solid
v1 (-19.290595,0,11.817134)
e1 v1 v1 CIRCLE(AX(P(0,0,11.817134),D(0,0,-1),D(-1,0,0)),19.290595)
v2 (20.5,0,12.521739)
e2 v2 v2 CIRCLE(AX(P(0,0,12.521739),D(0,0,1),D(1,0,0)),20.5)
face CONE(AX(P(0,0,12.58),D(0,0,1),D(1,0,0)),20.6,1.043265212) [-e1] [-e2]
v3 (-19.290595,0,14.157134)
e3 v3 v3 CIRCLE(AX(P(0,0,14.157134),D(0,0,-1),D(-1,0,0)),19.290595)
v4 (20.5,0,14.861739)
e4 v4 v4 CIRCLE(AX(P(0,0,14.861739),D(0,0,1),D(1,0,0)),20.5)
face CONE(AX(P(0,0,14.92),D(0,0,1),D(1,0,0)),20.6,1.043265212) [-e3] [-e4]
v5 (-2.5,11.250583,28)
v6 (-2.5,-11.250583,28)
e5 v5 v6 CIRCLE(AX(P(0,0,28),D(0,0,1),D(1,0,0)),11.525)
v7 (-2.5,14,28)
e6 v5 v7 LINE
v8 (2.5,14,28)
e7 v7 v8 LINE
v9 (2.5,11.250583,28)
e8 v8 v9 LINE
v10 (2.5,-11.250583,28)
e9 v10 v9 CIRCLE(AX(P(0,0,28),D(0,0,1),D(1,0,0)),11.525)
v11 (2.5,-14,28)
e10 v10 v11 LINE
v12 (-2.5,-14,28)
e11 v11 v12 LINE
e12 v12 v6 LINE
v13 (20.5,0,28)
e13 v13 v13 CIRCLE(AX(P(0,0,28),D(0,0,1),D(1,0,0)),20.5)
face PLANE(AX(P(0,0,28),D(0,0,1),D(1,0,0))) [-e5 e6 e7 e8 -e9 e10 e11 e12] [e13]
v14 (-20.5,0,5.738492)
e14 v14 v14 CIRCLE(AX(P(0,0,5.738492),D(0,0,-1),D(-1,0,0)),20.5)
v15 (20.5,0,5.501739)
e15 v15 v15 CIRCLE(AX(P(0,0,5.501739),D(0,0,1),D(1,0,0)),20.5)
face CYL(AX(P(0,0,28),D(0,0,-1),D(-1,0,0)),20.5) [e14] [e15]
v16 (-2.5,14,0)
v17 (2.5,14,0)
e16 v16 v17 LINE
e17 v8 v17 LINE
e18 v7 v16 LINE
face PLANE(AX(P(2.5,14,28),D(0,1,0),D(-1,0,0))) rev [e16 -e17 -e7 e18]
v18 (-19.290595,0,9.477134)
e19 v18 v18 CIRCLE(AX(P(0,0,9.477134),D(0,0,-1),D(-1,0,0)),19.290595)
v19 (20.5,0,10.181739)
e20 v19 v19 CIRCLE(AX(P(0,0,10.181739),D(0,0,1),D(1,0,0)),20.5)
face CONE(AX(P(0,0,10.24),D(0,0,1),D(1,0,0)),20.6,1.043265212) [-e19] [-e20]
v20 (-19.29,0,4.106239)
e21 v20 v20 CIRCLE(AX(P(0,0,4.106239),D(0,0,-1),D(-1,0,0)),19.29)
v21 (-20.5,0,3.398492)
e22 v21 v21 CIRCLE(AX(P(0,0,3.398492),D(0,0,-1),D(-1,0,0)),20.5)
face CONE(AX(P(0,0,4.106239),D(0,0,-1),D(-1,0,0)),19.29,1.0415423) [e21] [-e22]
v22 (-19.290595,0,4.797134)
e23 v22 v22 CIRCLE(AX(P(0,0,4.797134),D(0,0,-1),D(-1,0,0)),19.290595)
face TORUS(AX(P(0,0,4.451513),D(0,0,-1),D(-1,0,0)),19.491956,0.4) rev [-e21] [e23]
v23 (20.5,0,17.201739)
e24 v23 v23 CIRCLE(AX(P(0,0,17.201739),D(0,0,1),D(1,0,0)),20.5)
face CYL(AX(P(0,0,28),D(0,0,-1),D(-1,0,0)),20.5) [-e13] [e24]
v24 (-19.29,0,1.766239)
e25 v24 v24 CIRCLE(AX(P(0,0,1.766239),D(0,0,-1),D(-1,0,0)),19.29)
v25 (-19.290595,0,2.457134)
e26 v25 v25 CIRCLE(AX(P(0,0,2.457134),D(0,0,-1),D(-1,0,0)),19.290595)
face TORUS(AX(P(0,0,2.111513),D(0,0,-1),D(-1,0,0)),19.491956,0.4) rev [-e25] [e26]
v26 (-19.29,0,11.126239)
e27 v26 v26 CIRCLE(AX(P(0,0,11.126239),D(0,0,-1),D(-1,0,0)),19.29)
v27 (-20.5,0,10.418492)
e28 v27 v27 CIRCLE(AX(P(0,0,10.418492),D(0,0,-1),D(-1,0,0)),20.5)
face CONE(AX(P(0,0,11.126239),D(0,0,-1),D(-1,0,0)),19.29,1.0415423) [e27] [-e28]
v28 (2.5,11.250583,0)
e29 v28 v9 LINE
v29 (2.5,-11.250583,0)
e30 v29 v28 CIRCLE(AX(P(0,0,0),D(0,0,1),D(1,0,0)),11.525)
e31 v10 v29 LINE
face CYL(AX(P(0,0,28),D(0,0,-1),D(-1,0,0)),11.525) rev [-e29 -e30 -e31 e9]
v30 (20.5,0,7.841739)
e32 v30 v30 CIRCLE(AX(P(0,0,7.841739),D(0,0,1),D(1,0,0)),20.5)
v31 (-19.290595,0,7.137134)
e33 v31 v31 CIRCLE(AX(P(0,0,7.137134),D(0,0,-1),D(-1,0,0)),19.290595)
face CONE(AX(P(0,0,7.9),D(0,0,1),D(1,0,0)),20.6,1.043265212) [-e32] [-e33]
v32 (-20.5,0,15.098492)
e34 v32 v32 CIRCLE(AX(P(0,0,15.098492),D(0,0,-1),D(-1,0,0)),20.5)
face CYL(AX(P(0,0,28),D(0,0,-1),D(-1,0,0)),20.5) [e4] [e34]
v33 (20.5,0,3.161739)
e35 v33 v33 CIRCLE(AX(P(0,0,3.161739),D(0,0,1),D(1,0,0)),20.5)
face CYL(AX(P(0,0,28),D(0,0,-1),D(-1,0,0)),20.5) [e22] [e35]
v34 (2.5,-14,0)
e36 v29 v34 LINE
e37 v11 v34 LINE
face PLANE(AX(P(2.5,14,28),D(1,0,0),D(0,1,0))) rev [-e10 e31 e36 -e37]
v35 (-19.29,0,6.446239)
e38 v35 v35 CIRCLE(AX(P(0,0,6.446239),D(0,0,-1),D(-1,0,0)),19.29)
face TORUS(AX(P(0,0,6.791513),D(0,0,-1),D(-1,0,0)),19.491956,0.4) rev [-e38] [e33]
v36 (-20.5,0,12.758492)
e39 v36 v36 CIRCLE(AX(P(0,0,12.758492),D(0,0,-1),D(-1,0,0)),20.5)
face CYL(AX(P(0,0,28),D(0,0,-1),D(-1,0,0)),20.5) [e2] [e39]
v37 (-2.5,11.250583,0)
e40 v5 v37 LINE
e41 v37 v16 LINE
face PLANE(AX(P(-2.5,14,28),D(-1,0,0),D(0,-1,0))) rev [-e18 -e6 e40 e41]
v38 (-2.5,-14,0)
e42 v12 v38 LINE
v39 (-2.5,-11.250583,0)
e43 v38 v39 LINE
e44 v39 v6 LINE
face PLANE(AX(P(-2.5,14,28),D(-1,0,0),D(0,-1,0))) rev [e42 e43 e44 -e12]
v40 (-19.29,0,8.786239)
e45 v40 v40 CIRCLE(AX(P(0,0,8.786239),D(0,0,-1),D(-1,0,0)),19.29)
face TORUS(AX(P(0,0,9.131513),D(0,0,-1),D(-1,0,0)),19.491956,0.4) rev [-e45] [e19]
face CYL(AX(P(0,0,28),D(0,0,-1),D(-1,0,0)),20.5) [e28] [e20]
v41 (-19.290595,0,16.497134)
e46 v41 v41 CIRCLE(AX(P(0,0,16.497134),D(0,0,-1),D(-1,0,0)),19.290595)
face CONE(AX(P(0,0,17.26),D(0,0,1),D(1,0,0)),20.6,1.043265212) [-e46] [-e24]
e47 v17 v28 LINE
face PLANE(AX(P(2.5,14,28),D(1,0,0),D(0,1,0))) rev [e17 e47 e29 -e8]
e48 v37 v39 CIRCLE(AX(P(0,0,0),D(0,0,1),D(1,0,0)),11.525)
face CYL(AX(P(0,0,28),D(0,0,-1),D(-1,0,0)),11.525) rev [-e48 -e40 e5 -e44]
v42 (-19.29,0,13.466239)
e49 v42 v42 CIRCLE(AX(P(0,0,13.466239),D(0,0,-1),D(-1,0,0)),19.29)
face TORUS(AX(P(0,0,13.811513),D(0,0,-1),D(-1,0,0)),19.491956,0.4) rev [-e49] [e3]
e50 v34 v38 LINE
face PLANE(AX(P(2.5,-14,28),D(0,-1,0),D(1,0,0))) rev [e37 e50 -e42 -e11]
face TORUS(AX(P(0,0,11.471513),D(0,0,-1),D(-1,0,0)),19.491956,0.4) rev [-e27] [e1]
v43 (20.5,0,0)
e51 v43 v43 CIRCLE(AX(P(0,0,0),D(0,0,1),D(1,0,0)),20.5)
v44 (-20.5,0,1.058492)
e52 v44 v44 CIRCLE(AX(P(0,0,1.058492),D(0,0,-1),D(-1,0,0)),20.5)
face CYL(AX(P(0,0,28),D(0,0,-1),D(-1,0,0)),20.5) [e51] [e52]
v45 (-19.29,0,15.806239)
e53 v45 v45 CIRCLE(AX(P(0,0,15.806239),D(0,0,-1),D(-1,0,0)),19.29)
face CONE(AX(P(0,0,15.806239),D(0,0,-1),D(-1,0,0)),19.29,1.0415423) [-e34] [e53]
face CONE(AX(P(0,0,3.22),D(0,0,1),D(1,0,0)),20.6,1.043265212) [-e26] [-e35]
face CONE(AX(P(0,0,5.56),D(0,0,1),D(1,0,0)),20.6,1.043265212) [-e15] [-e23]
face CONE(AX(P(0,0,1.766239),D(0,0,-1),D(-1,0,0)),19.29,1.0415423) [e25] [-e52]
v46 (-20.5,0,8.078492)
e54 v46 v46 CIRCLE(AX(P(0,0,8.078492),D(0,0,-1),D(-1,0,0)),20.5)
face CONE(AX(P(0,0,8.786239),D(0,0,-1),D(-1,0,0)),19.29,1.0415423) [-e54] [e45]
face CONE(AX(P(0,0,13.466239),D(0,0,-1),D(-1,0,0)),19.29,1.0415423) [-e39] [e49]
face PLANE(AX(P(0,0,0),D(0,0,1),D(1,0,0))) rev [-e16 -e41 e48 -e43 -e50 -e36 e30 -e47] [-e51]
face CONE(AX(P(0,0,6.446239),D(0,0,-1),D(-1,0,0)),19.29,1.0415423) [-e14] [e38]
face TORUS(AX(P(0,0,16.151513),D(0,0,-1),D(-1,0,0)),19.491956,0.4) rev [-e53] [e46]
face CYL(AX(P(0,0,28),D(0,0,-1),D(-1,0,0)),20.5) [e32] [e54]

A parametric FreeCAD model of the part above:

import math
import FreeCAD as App
import Part
import Sketcher

V = App.Vector
Q = App.Units.Quantity


def add_polygon(sketch, points):
    """Adds a closed chain of lines whose ends are joined by coincident constraints."""
    first, n = sketch.GeometryCount, len(points)
    for a, b in zip(points, points[1:] + points[:1]):
        sketch.addGeometry(Part.LineSegment(App.Vector(*a, 0), App.Vector(*b, 0)), False)
    for i in range(n):
        sketch.addConstraint(Sketcher.Constraint("Coincident", first + i, 2, first + (i + 1) % n, 1))

doc = App.newDocument("Part")
params = doc.addObject("Spreadsheet::Sheet", "Params")
for row, (alias, value) in enumerate([
    ("sketch1_diameter", "41 mm"),
    ("sketch1_diameter2", "23.05 mm"),
    ("pad1_length", "28 mm"),
    ("sketch2_radius", "0.4 mm"),
    ("sketch2_height", "2.22 mm"),
    ("groove_angle", "360 deg"),
    ("sketch3_width", "5 mm"),
    ("sketch3_height", "28 mm"),
], start=1):
    params.set(f"A{row}", alias)
    params.set(f"B{row}", "=" + value)
    params.setAlias(f"B{row}", alias)

body = doc.addObject("PartDesign::Body", "Body")

# Sketch on XY plane
sketch1 = body.newObject("Sketcher::SketchObject", "Sketch")
sketch1.AttachmentSupport = (doc.getObject("XY_Plane"), [""])
sketch1.MapMode = "FlatFace"
sketch1.addGeometry([
    Part.Circle(V(0, 0, 0), V(0, 0, 1), 20.5),
    Part.Circle(V(0, 0, 0), V(0, 0, 1), 11.525),
], False)
sketch1.addConstraint([
    Sketcher.Constraint("Coincident", 0, 3, -1, 1),
    Sketcher.Constraint("Coincident", 1, 3, -1, 1),
    Sketcher.Constraint("Diameter", 0, Q("41 mm")),
    Sketcher.Constraint("Diameter", 1, Q("23.05 mm")),
])
sketch1.setExpression("Constraints[2]", "Params.sketch1_diameter")
sketch1.setExpression("Constraints[3]", "Params.sketch1_diameter2")
pad1 = body.newObject("PartDesign::Pad", "Pad")
pad1.Profile = sketch1
pad1.setExpression("Length", "Params.pad1_length")

# Sketch on YZ plane
sketch2 = body.newObject("Sketcher::SketchObject", "Sketch001")
sketch2.AttachmentSupport = (doc.getObject("YZ_Plane"), [""])
sketch2.MapMode = "FlatFace"
sketch2.addGeometry([
    Part.LineSegment(V(20.6, 1, 0), V(20.6, 3.22, 0)),  # 0
    Part.LineSegment(V(20.6, 3.22, 0), V(19.290595, 2.457134, 0)),  # 1
    Part.ArcOfCircle(Part.Circle(V(19.491956, 2.111513, 0), V(0, 0, 1), 0.4), math.radians(120.225306), math.radians(239.675978)),  # 2
    Part.LineSegment(V(19.29, 1.766239, 0), V(20.6, 1, 0)),  # 3
    Part.LineSegment(V(19.29, 4.106239, 0), V(20.6, 3.34, 0)),  # 4
    Part.LineSegment(V(20.6, 3.34, 0), V(20.6, 5.56, 0)),  # 5
    Part.LineSegment(V(20.6, 5.56, 0), V(19.290595, 4.797134, 0)),  # 6
    Part.ArcOfCircle(Part.Circle(V(19.491956, 4.451513, 0), V(0, 0, 1), 0.4), math.radians(120.225306), math.radians(239.675978)),  # 7
    Part.LineSegment(V(19.29, 6.446239, 0), V(20.6, 5.68, 0)),  # 8
    Part.LineSegment(V(20.6, 5.68, 0), V(20.6, 7.9, 0)),  # 9
    Part.LineSegment(V(20.6, 7.9, 0), V(19.290595, 7.137134, 0)),  # 10
    Part.ArcOfCircle(Part.Circle(V(19.491956, 6.791513, 0), V(0, 0, 1), 0.4), math.radians(120.225306), math.radians(239.675978)),  # 11
    Part.LineSegment(V(19.29, 8.786239, 0), V(20.6, 8.02, 0)),  # 12
    Part.LineSegment(V(20.6, 8.02, 0), V(20.6, 10.24, 0)),  # 13
    Part.LineSegment(V(20.6, 10.24, 0), V(19.290595, 9.477134, 0)),  # 14
    Part.ArcOfCircle(Part.Circle(V(19.491956, 9.131513, 0), V(0, 0, 1), 0.4), math.radians(120.225306), math.radians(239.675978)),  # 15
    Part.LineSegment(V(19.29, 11.126239, 0), V(20.6, 10.36, 0)),  # 16
    Part.LineSegment(V(20.6, 10.36, 0), V(20.6, 12.58, 0)),  # 17
    Part.LineSegment(V(20.6, 12.58, 0), V(19.290595, 11.817134, 0)),  # 18
    Part.ArcOfCircle(Part.Circle(V(19.491956, 11.471513, 0), V(0, 0, 1), 0.4), math.radians(120.225306), math.radians(239.675978)),  # 19
    Part.LineSegment(V(19.29, 13.466239, 0), V(20.6, 12.7, 0)),  # 20
    Part.LineSegment(V(20.6, 12.7, 0), V(20.6, 14.92, 0)),  # 21
    Part.LineSegment(V(20.6, 14.92, 0), V(19.290595, 14.157134, 0)),  # 22
    Part.ArcOfCircle(Part.Circle(V(19.491956, 13.811513, 0), V(0, 0, 1), 0.4), math.radians(120.225306), math.radians(239.675978)),  # 23
    Part.LineSegment(V(19.29, 15.806239, 0), V(20.6, 15.04, 0)),  # 24
    Part.LineSegment(V(20.6, 15.04, 0), V(20.6, 17.26, 0)),  # 25
    Part.LineSegment(V(20.6, 17.26, 0), V(19.290595, 16.497134, 0)),  # 26
    Part.ArcOfCircle(Part.Circle(V(19.491956, 16.151513, 0), V(0, 0, 1), 0.4), math.radians(120.225306), math.radians(239.675978)),  # 27
], False)
sketch2.addConstraint([
    Sketcher.Constraint("Coincident", 0, 2, 1, 1),
    Sketcher.Constraint("Tangent", 1, 2, 2, 1),
    Sketcher.Constraint("Tangent", 2, 2, 3, 1),
    Sketcher.Constraint("Coincident", 3, 2, 0, 1),
    Sketcher.Constraint("Coincident", 4, 2, 5, 1),
    Sketcher.Constraint("Coincident", 5, 2, 6, 1),
    Sketcher.Constraint("Tangent", 6, 2, 7, 1),
    Sketcher.Constraint("Tangent", 7, 2, 4, 1),
    Sketcher.Constraint("Coincident", 8, 2, 9, 1),
    Sketcher.Constraint("Coincident", 9, 2, 10, 1),
    Sketcher.Constraint("Tangent", 10, 2, 11, 1),
    Sketcher.Constraint("Tangent", 11, 2, 8, 1),
    Sketcher.Constraint("Coincident", 12, 2, 13, 1),
    Sketcher.Constraint("Coincident", 13, 2, 14, 1),
    Sketcher.Constraint("Tangent", 14, 2, 15, 1),
    Sketcher.Constraint("Tangent", 15, 2, 12, 1),
    Sketcher.Constraint("Coincident", 16, 2, 17, 1),
    Sketcher.Constraint("Coincident", 17, 2, 18, 1),
    Sketcher.Constraint("Tangent", 18, 2, 19, 1),
    Sketcher.Constraint("Tangent", 19, 2, 16, 1),
    Sketcher.Constraint("Coincident", 20, 2, 21, 1),
    Sketcher.Constraint("Coincident", 21, 2, 22, 1),
    Sketcher.Constraint("Tangent", 22, 2, 23, 1),
    Sketcher.Constraint("Tangent", 23, 2, 20, 1),
    Sketcher.Constraint("Coincident", 24, 2, 25, 1),
    Sketcher.Constraint("Coincident", 25, 2, 26, 1),
    Sketcher.Constraint("Tangent", 26, 2, 27, 1),
    Sketcher.Constraint("Tangent", 27, 2, 24, 1),
    Sketcher.Constraint("Vertical", 0),
    Sketcher.Constraint("Vertical", 5),
    Sketcher.Constraint("Vertical", 9),
    Sketcher.Constraint("Vertical", 13),
    Sketcher.Constraint("Vertical", 17),
    Sketcher.Constraint("Vertical", 21),
    Sketcher.Constraint("Vertical", 25),
    Sketcher.Constraint("Equal", 2, 7),
    Sketcher.Constraint("Equal", 7, 11),
    Sketcher.Constraint("Equal", 11, 15),
    Sketcher.Constraint("Equal", 15, 19),
    Sketcher.Constraint("Equal", 19, 23),
    Sketcher.Constraint("Equal", 23, 27),
    Sketcher.Constraint("Parallel", 3, 4),
    Sketcher.Constraint("Parallel", 1, 6),
    Sketcher.Constraint("Parallel", 4, 8),
    Sketcher.Constraint("Parallel", 6, 10),
    Sketcher.Constraint("Parallel", 8, 12),
    Sketcher.Constraint("Parallel", 10, 14),
    Sketcher.Constraint("Parallel", 12, 16),
    Sketcher.Constraint("Parallel", 14, 18),
    Sketcher.Constraint("Parallel", 16, 20),
    Sketcher.Constraint("Parallel", 18, 22),
    Sketcher.Constraint("Parallel", 20, 24),
    Sketcher.Constraint("Parallel", 22, 26),
    Sketcher.Constraint("Vertical", 2, 3, 7, 3),
    Sketcher.Constraint("Vertical", 7, 3, 11, 3),
    Sketcher.Constraint("Vertical", 11, 3, 15, 3),
    Sketcher.Constraint("Vertical", 15, 3, 19, 3),
    Sketcher.Constraint("Vertical", 19, 3, 23, 3),
    Sketcher.Constraint("Vertical", 23, 3, 27, 3),
    Sketcher.Constraint("Vertical", 3, 2, 4, 2),
    Sketcher.Constraint("Vertical", 5, 2, 8, 2),
    Sketcher.Constraint("Vertical", 9, 2, 12, 2),
    Sketcher.Constraint("Vertical", 13, 2, 16, 2),
    Sketcher.Constraint("Vertical", 17, 2, 20, 2),
    Sketcher.Constraint("Vertical", 21, 2, 24, 2),
    Sketcher.Constraint("Radius", 2, Q("0.4 mm")),
    Sketcher.Constraint("DistanceY", -1, 1, 3, 2, Q("1 mm")),
    Sketcher.Constraint("DistanceY", 0, 1, 0, 2, Q("2.22 mm")),
    Sketcher.Constraint("DistanceX", -1, 1, 0, 2, Q("20.6 mm")),
    Sketcher.Constraint("DistanceY", -1, 1, 9, 2, Q("7.9 mm")),
    Sketcher.Constraint("DistanceY", -1, 1, 20, 2, Q("12.7 mm")),
    Sketcher.Constraint("DistanceY", 7, 3, 27, 3, Q("11.7 mm")),
    Sketcher.Constraint("DistanceX", -1, 1, 2, 2, Q("19.29 mm")),
    Sketcher.Constraint("DistanceY", -1, 1, 4, 2, Q("3.34 mm")),
    Sketcher.Constraint("DistanceY", -1, 1, 12, 2, Q("8.02 mm")),
    Sketcher.Constraint("DistanceY", -1, 1, 16, 2, Q("10.36 mm")),
    Sketcher.Constraint("DistanceY", -1, 1, 2, 2, Q("1.766239 mm")),
])
sketch2.setExpression("Constraints[65]", "Params.sketch2_radius")
sketch2.setExpression("Constraints[67]", "Params.sketch2_height")
groove = body.newObject("PartDesign::Groove", "Groove")
groove.Profile = sketch2
groove.ReferenceAxis = (sketch2, ["V_Axis"])
groove.setExpression("Angle", "Params.groove_angle")

# Sketch on XY plane
sketch3 = body.newObject("Sketcher::SketchObject", "Sketch002")
sketch3.AttachmentSupport = (doc.getObject("XY_Plane"), [""])
sketch3.MapMode = "FlatFace"
add_polygon(sketch3, [(2.5, 14), (2.5, -14), (-2.5, -14), (-2.5, 14)])  # lines 0-3
sketch3.addConstraint([
    Sketcher.Constraint("Vertical", 0),
    Sketcher.Constraint("Horizontal", 1),
    Sketcher.Constraint("Vertical", 2),
    Sketcher.Constraint("Horizontal", 3),
    Sketcher.Constraint("Symmetric", 0, 2, 2, 2, -1, 1),
    Sketcher.Constraint("DistanceX", 1, 2, 1, 1, Q("5 mm")),
    Sketcher.Constraint("DistanceY", 0, 2, 0, 1, Q("28 mm")),
])
sketch3.setExpression("Constraints[9]", "Params.sketch3_width")
sketch3.setExpression("Constraints[10]", "Params.sketch3_height")
pocket1 = body.newObject("PartDesign::Pocket", "Pocket")
pocket1.Profile = sketch3
pocket1.Type = "ThroughAll"
pocket1.Reversed = True

doc.recompute()
